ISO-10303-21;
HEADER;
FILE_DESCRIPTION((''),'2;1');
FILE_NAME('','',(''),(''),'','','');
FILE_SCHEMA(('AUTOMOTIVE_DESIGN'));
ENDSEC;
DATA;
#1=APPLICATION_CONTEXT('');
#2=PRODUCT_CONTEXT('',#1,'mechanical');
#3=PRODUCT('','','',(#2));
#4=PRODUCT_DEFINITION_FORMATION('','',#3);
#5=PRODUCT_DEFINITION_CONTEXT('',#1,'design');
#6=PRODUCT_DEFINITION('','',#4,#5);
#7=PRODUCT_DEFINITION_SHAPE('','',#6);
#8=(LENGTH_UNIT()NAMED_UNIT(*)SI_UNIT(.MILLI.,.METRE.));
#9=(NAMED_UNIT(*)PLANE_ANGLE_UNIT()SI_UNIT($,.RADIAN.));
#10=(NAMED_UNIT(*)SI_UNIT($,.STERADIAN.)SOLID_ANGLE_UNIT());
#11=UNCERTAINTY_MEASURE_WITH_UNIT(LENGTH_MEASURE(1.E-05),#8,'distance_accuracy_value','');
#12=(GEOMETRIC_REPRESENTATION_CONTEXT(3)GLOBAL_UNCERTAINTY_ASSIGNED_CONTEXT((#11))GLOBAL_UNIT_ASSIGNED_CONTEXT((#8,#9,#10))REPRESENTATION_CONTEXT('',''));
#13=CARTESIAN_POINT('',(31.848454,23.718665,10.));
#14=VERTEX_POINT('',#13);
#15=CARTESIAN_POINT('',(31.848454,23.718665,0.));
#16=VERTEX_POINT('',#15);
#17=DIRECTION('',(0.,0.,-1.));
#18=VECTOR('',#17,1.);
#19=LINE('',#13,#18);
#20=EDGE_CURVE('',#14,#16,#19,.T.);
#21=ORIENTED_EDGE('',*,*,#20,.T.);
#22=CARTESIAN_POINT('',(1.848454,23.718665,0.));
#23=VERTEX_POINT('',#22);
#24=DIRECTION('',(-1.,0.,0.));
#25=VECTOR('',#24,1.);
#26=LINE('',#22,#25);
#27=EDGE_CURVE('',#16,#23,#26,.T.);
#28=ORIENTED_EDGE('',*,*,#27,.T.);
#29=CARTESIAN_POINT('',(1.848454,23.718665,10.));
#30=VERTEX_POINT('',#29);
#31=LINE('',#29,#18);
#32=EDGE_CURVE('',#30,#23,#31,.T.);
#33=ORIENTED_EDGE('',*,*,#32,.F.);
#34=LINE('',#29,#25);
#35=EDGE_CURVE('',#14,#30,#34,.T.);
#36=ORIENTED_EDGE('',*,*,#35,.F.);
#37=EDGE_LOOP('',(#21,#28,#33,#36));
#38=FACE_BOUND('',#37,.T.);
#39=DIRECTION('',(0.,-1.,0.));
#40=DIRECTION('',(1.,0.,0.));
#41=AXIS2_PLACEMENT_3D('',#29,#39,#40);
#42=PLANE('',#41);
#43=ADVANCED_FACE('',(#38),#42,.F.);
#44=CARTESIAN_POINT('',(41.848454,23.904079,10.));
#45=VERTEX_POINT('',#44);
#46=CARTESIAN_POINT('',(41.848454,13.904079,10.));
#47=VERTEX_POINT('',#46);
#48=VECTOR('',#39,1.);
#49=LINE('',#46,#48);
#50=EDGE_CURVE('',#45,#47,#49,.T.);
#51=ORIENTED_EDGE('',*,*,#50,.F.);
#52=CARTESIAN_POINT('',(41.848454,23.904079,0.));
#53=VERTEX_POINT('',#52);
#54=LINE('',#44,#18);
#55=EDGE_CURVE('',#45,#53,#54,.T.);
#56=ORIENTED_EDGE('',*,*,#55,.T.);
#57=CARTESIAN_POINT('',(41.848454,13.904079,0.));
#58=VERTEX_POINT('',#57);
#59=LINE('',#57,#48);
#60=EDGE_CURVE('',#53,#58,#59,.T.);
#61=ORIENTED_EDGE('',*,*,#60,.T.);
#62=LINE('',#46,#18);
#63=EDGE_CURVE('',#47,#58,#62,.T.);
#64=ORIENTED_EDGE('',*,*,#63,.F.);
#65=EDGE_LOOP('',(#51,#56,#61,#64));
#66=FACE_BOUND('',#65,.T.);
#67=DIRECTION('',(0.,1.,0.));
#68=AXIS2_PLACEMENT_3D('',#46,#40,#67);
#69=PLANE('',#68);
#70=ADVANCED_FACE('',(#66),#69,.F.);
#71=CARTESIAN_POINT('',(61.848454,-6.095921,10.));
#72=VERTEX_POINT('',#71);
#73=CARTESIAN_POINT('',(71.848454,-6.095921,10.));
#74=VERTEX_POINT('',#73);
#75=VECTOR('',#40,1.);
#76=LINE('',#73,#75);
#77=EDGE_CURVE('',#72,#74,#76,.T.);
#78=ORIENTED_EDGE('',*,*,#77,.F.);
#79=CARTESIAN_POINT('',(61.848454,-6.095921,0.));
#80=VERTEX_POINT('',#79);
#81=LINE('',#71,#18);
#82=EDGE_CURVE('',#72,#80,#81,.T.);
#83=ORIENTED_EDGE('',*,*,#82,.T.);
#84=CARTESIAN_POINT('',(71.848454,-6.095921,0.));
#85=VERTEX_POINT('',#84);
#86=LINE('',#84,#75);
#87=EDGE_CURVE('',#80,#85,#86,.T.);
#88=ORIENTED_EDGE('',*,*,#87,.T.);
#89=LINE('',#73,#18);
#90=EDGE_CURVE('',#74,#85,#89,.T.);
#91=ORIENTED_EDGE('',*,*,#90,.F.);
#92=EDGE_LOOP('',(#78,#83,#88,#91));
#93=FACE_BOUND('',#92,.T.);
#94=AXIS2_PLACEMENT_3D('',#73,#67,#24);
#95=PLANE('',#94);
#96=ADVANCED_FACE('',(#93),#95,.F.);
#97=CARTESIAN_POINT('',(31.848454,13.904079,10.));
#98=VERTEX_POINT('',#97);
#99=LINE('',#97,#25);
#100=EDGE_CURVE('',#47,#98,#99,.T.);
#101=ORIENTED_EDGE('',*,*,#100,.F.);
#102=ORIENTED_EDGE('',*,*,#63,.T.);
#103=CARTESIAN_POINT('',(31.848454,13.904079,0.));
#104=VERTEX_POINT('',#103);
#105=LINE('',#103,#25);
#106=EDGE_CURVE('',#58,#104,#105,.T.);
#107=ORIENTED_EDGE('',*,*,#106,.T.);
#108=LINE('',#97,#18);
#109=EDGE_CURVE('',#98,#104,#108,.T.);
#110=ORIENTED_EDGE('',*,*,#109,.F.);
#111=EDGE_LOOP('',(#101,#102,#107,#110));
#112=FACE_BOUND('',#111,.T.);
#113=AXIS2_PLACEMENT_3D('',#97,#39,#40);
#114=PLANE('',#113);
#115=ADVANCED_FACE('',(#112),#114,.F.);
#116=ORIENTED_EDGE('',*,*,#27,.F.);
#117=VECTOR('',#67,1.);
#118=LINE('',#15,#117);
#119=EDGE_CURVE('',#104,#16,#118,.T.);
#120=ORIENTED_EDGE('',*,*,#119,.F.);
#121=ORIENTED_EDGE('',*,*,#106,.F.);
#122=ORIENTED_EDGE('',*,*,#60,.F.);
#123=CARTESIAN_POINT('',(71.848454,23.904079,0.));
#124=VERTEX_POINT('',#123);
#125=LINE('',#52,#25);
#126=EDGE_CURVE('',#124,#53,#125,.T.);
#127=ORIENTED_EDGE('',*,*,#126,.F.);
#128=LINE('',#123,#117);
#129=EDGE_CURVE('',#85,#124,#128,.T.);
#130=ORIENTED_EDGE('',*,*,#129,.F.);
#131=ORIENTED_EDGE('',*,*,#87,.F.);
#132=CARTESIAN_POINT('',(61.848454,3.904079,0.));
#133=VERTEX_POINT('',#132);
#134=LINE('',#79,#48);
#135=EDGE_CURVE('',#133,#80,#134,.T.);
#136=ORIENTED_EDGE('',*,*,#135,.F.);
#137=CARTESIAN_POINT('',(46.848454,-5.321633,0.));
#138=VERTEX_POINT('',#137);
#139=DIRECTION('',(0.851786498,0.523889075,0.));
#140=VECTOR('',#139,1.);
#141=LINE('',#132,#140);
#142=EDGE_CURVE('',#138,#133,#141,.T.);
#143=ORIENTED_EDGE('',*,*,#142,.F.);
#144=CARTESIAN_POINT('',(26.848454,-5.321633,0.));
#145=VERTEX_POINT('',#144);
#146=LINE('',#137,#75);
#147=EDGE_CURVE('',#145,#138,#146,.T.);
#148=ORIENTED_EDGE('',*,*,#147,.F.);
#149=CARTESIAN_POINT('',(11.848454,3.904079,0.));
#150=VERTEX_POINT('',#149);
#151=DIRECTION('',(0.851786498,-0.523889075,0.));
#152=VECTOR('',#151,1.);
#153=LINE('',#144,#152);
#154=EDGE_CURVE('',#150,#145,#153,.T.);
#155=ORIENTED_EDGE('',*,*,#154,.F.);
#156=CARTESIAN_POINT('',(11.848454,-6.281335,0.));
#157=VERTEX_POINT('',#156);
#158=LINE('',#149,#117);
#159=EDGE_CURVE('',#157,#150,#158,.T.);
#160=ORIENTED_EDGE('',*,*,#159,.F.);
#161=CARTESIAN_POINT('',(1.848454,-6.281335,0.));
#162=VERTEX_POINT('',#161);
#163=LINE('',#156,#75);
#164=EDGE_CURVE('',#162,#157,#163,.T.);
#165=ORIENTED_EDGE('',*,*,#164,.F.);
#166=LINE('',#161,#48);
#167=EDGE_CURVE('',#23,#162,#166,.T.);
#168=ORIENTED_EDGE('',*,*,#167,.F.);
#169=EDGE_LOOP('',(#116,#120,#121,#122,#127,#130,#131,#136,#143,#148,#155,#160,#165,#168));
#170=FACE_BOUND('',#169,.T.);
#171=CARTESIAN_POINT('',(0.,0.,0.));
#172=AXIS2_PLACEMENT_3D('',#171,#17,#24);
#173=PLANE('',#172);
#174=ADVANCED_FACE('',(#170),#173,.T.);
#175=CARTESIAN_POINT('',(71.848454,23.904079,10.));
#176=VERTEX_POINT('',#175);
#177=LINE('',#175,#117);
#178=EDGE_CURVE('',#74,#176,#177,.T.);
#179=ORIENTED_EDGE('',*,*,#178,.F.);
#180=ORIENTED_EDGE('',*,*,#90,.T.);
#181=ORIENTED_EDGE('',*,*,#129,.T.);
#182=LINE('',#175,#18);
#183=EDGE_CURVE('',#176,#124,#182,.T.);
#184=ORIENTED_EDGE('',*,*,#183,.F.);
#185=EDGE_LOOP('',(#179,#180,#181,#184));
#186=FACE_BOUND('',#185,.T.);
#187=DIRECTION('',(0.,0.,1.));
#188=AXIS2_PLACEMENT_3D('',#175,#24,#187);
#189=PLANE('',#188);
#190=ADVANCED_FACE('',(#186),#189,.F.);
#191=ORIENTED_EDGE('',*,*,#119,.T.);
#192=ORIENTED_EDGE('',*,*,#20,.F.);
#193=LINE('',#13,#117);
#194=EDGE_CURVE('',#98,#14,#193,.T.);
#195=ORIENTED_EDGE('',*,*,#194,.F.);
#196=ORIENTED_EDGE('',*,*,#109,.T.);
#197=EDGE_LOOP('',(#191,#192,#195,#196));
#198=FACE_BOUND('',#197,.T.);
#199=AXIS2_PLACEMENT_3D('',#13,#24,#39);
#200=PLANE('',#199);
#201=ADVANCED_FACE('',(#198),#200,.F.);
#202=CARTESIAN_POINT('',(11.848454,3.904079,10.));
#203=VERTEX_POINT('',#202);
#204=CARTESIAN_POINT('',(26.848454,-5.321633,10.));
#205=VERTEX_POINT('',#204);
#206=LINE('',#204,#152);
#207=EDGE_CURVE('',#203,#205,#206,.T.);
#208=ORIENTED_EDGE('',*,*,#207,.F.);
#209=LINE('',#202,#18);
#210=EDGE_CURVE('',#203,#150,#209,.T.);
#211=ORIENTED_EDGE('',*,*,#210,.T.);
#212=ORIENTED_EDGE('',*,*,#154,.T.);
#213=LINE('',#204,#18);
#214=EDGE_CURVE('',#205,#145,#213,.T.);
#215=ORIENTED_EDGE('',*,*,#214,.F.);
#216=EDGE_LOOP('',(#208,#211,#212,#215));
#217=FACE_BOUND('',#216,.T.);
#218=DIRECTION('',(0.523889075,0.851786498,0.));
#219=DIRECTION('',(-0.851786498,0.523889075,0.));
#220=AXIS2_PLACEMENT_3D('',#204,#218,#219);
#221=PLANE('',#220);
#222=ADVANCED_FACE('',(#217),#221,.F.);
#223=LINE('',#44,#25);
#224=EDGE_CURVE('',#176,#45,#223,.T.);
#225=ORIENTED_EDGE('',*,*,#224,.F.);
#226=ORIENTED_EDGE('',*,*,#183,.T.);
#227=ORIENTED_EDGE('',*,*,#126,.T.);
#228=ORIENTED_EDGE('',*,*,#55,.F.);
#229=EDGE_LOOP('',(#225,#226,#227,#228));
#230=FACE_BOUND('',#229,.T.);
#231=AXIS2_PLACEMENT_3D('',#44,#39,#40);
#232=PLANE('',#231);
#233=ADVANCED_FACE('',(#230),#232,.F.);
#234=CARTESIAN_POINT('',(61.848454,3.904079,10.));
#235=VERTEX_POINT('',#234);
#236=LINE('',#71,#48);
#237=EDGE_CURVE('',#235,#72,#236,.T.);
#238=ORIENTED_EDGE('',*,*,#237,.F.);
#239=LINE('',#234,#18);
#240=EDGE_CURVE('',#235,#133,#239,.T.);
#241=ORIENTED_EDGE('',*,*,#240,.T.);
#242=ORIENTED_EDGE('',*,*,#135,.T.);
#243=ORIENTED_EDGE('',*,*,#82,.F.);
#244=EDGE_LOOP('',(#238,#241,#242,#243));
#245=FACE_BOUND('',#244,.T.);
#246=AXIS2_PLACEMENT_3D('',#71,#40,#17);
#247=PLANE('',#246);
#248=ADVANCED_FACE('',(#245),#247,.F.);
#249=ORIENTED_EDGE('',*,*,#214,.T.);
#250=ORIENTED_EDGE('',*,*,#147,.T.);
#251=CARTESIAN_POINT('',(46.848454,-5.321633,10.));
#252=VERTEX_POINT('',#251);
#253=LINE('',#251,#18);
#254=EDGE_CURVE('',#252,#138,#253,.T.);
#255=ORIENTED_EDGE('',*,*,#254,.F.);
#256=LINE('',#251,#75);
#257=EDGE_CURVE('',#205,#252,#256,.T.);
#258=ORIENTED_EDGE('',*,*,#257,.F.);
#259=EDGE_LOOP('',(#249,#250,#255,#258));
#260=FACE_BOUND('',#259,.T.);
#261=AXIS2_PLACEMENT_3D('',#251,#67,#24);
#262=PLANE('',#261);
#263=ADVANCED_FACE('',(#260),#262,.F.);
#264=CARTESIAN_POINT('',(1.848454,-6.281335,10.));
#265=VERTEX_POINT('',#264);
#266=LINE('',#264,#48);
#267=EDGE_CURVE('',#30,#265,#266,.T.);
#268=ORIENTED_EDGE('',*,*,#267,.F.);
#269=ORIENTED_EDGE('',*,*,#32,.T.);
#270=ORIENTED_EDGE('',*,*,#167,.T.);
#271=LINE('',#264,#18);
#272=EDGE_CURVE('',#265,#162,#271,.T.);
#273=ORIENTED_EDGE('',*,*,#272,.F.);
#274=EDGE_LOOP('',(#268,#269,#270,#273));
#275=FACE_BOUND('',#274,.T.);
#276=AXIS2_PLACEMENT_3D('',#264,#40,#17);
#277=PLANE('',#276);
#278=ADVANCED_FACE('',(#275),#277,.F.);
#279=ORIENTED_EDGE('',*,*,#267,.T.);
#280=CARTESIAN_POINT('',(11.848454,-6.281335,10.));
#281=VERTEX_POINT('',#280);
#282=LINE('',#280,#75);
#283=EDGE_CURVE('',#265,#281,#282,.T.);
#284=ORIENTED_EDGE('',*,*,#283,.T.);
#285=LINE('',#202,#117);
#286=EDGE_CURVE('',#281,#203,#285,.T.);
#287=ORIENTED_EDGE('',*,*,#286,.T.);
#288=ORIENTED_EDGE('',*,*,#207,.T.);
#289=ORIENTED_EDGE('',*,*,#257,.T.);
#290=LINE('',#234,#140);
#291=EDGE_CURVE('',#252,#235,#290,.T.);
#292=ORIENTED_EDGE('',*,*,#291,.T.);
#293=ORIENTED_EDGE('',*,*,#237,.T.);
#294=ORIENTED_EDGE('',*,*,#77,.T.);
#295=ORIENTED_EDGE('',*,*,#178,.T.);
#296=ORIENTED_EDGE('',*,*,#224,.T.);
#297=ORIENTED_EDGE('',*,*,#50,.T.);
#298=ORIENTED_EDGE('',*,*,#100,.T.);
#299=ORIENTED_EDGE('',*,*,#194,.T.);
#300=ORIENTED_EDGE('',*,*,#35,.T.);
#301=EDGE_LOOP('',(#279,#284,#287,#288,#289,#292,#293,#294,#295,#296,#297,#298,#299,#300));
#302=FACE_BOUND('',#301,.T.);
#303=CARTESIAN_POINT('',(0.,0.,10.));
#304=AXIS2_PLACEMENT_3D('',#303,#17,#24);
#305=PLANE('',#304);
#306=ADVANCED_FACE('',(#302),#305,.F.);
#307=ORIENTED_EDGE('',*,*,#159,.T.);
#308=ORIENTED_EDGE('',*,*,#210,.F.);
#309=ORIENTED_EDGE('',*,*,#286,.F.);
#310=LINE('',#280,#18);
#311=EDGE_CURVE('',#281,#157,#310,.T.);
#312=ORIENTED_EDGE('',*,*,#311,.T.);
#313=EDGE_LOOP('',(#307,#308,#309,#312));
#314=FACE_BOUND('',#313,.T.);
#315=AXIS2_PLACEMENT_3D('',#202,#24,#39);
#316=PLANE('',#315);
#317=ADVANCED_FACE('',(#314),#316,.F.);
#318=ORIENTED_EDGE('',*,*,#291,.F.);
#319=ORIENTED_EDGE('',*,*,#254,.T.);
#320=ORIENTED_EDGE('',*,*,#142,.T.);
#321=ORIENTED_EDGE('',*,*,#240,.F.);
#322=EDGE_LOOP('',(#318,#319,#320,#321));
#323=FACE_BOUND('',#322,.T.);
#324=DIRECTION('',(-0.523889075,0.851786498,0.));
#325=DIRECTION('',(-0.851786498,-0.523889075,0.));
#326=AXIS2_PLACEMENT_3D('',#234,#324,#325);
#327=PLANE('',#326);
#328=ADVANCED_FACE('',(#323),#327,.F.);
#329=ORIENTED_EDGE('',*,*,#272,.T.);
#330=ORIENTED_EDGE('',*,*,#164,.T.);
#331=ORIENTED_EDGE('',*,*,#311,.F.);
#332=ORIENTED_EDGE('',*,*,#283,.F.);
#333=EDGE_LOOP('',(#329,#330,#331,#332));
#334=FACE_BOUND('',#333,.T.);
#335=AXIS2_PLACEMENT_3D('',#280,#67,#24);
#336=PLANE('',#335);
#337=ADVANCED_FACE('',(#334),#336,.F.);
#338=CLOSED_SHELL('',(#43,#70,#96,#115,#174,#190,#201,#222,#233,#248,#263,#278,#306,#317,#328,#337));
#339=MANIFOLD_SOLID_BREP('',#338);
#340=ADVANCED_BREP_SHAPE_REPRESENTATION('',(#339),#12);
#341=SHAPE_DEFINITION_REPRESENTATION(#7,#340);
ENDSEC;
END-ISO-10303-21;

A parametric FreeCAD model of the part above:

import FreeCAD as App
import Part
import Sketcher


def add_polygon(sketch, points):
    """Adds a closed chain of lines whose ends are joined by coincident constraints."""
    first, n = sketch.GeometryCount, len(points)
    for a, b in zip(points, points[1:] + points[:1]):
        sketch.addGeometry(Part.LineSegment(App.Vector(*a, 0), App.Vector(*b, 0)), False)
    for i in range(n):
        sketch.addConstraint(Sketcher.Constraint("Coincident", first + i, 2, first + (i + 1) % n, 1))

doc = App.newDocument("Part")
body = doc.addObject("PartDesign::Body", "Body")

# Sketch on XY plane
sketch1 = doc.addObject("Sketcher::SketchObject", "Sketch")
body.addObject(sketch1)
sketch1.AttachmentSupport = (doc.XY_Plane, [""])
sketch1.MapMode = "FlatFace"
add_polygon(sketch1, [(31.848454, 23.718665), (1.848454, 23.718665), (1.848454, -6.281335), (11.848454, -6.281335), (11.848454, 3.904079), (26.848454, -5.321633), (46.848454, -5.321633), (61.848454, 3.904079), (61.848454, -6.095921), (71.848454, -6.095921), (71.848454, 23.904079), (41.848454, 23.904079), (41.848454, 13.904079), (31.848454, 13.904079)])  # lines 0-13
sketch1.addConstraint(Sketcher.Constraint("Horizontal", 0))
sketch1.addConstraint(Sketcher.Constraint("Vertical", 1))
sketch1.addConstraint(Sketcher.Constraint("Horizontal", 2))
sketch1.addConstraint(Sketcher.Constraint("Vertical", 3))
sketch1.addConstraint(Sketcher.Constraint("Horizontal", 5))
sketch1.addConstraint(Sketcher.Constraint("Vertical", 7))
sketch1.addConstraint(Sketcher.Constraint("Horizontal", 8))
sketch1.addConstraint(Sketcher.Constraint("Vertical", 9))
sketch1.addConstraint(Sketcher.Constraint("Horizontal", 10))
sketch1.addConstraint(Sketcher.Constraint("Vertical", 11))
sketch1.addConstraint(Sketcher.Constraint("Horizontal", 12))
sketch1.addConstraint(Sketcher.Constraint("Vertical", 13))
sketch1.addConstraint(Sketcher.Constraint("Horizontal", 3, 2, 6, 2))
sketch1.addConstraint(Sketcher.Constraint("Equal", 2, 8))
sketch1.addConstraint(Sketcher.Constraint("Equal", 0, 10))
sketch1.addConstraint(Sketcher.Constraint("Equal", 8, 12))
sketch1.addConstraint(Sketcher.Constraint("Equal", 10, 1))
sketch1.addConstraint(Sketcher.Constraint("Equal", 12, 7))
sketch1.addConstraint(Sketcher.Constraint("Equal", 1, 9))
sketch1.addConstraint(Sketcher.Constraint("Equal", 7, 11))
sketch1.addConstraint(Sketcher.Constraint("Equal", 4, 6))
sketch1.addConstraint(Sketcher.Constraint("DistanceX", 0, 2, 0, 1, 30.0))
sketch1.addConstraint(Sketcher.Constraint("DistanceX", 2, 1, 2, 2, 10.0))
sketch1.addConstraint(Sketcher.Constraint("DistanceX", 5, 1, 5, 2, 20.0))
sketch1.addConstraint(Sketcher.Constraint("DistanceY", 3, 1, 3, 2, 10.185414))
sketch1.addConstraint(Sketcher.Constraint("DistanceY", -1, 1, 3, 2, 3.904079))
sketch1.addConstraint(Sketcher.Constraint("DistanceY", 4, 2, 3, 2, 9.225711))
sketch1.addConstraint(Sketcher.Constraint("DistanceX", -1, 1, 0, 2, 1.848454))
pad1 = doc.addObject("PartDesign::Pad", "Pad")
body.addObject(pad1)
pad1.Profile = sketch1
pad1.Length = 10

doc.recompute()
